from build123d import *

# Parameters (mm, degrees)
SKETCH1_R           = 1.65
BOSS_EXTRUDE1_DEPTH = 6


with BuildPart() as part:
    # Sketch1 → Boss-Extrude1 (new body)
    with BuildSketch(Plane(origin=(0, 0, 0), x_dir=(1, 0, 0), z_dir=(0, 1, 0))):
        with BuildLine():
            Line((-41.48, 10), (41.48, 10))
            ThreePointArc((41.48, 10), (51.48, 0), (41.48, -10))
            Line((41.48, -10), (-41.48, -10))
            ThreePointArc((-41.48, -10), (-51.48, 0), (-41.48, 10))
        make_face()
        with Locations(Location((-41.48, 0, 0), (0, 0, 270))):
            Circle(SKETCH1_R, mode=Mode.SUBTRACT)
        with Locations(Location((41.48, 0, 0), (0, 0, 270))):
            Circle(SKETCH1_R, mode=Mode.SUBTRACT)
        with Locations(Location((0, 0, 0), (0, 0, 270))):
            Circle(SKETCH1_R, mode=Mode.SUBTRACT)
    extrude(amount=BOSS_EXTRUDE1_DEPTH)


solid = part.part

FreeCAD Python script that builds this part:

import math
import FreeCAD as App
import Part
import Sketcher
from FreeCAD import Vector
Q = App.Units.Quantity

doc = App.newDocument("Part")
body = doc.addObject("PartDesign::Body", "Body")

# Sketch on XZ plane
sketch1 = body.newObject("Sketcher::SketchObject", "Sketch")
sketch1.AttachmentSupport = (doc.getObject("XZ_Plane"), [""])
sketch1.MapMode = "FlatFace"
sketch1.addGeometry([
    Part.LineSegment(Vector(41.5, -10, 0), Vector(-41.5, -10, 0)),  # 0
    Part.ArcOfCircle(Part.Circle(Vector(-41.5, 0, 0), Vector(0, 0, 1), 10), math.radians(90), math.radians(270)),  # 1
    Part.LineSegment(Vector(-41.5, 10, 0), Vector(41.5, 10, 0)),  # 2
    Part.ArcOfCircle(Part.Circle(Vector(41.5, 0, 0), Vector(0, 0, 1), 10), math.radians(-90), math.radians(90)),  # 3
    Part.Circle(Vector(41.5, 0, 0), Vector(0, 0, 1), 1.6),  # 4
    Part.Circle(Vector(0, 0, 0), Vector(0, 0, 1), 1.6),  # 5
    Part.Circle(Vector(-41.5, 0, 0), Vector(0, 0, 1), 1.6),  # 6
], False)
sketch1.addConstraint([
    Sketcher.Constraint("Tangent", 0, 2, 1, 2),
    Sketcher.Constraint("Tangent", 1, 1, 2, 1),
    Sketcher.Constraint("Tangent", 2, 2, 3, 2),
    Sketcher.Constraint("Tangent", 3, 1, 0, 1),
    Sketcher.Constraint("Horizontal", 0),
    Sketcher.Constraint("Horizontal", 2),
    Sketcher.Constraint("Coincident", 5, 3, -1, 1),
    Sketcher.Constraint("Coincident", 4, 3, 3, 3),
    Sketcher.Constraint("Coincident", 6, 3, 1, 3),
    Sketcher.Constraint("Equal", 4, 5),
    Sketcher.Constraint("Equal", 5, 6),
    Sketcher.Constraint("Symmetric", 1, 3, 3, 3, -1, 1),
    Sketcher.Constraint("Radius", 1, Q("10 mm")),
    Sketcher.Constraint("Diameter", 4, Q("3.3 mm")),
    Sketcher.Constraint("DistanceX", 0, 2, 0, 1, Q("82.96 mm")),
])
pad1 = body.newObject("PartDesign::Pad", "Pad")
pad1.Profile = sketch1
pad1.Length = 6
pad1.Reversed = True

doc.recompute()
